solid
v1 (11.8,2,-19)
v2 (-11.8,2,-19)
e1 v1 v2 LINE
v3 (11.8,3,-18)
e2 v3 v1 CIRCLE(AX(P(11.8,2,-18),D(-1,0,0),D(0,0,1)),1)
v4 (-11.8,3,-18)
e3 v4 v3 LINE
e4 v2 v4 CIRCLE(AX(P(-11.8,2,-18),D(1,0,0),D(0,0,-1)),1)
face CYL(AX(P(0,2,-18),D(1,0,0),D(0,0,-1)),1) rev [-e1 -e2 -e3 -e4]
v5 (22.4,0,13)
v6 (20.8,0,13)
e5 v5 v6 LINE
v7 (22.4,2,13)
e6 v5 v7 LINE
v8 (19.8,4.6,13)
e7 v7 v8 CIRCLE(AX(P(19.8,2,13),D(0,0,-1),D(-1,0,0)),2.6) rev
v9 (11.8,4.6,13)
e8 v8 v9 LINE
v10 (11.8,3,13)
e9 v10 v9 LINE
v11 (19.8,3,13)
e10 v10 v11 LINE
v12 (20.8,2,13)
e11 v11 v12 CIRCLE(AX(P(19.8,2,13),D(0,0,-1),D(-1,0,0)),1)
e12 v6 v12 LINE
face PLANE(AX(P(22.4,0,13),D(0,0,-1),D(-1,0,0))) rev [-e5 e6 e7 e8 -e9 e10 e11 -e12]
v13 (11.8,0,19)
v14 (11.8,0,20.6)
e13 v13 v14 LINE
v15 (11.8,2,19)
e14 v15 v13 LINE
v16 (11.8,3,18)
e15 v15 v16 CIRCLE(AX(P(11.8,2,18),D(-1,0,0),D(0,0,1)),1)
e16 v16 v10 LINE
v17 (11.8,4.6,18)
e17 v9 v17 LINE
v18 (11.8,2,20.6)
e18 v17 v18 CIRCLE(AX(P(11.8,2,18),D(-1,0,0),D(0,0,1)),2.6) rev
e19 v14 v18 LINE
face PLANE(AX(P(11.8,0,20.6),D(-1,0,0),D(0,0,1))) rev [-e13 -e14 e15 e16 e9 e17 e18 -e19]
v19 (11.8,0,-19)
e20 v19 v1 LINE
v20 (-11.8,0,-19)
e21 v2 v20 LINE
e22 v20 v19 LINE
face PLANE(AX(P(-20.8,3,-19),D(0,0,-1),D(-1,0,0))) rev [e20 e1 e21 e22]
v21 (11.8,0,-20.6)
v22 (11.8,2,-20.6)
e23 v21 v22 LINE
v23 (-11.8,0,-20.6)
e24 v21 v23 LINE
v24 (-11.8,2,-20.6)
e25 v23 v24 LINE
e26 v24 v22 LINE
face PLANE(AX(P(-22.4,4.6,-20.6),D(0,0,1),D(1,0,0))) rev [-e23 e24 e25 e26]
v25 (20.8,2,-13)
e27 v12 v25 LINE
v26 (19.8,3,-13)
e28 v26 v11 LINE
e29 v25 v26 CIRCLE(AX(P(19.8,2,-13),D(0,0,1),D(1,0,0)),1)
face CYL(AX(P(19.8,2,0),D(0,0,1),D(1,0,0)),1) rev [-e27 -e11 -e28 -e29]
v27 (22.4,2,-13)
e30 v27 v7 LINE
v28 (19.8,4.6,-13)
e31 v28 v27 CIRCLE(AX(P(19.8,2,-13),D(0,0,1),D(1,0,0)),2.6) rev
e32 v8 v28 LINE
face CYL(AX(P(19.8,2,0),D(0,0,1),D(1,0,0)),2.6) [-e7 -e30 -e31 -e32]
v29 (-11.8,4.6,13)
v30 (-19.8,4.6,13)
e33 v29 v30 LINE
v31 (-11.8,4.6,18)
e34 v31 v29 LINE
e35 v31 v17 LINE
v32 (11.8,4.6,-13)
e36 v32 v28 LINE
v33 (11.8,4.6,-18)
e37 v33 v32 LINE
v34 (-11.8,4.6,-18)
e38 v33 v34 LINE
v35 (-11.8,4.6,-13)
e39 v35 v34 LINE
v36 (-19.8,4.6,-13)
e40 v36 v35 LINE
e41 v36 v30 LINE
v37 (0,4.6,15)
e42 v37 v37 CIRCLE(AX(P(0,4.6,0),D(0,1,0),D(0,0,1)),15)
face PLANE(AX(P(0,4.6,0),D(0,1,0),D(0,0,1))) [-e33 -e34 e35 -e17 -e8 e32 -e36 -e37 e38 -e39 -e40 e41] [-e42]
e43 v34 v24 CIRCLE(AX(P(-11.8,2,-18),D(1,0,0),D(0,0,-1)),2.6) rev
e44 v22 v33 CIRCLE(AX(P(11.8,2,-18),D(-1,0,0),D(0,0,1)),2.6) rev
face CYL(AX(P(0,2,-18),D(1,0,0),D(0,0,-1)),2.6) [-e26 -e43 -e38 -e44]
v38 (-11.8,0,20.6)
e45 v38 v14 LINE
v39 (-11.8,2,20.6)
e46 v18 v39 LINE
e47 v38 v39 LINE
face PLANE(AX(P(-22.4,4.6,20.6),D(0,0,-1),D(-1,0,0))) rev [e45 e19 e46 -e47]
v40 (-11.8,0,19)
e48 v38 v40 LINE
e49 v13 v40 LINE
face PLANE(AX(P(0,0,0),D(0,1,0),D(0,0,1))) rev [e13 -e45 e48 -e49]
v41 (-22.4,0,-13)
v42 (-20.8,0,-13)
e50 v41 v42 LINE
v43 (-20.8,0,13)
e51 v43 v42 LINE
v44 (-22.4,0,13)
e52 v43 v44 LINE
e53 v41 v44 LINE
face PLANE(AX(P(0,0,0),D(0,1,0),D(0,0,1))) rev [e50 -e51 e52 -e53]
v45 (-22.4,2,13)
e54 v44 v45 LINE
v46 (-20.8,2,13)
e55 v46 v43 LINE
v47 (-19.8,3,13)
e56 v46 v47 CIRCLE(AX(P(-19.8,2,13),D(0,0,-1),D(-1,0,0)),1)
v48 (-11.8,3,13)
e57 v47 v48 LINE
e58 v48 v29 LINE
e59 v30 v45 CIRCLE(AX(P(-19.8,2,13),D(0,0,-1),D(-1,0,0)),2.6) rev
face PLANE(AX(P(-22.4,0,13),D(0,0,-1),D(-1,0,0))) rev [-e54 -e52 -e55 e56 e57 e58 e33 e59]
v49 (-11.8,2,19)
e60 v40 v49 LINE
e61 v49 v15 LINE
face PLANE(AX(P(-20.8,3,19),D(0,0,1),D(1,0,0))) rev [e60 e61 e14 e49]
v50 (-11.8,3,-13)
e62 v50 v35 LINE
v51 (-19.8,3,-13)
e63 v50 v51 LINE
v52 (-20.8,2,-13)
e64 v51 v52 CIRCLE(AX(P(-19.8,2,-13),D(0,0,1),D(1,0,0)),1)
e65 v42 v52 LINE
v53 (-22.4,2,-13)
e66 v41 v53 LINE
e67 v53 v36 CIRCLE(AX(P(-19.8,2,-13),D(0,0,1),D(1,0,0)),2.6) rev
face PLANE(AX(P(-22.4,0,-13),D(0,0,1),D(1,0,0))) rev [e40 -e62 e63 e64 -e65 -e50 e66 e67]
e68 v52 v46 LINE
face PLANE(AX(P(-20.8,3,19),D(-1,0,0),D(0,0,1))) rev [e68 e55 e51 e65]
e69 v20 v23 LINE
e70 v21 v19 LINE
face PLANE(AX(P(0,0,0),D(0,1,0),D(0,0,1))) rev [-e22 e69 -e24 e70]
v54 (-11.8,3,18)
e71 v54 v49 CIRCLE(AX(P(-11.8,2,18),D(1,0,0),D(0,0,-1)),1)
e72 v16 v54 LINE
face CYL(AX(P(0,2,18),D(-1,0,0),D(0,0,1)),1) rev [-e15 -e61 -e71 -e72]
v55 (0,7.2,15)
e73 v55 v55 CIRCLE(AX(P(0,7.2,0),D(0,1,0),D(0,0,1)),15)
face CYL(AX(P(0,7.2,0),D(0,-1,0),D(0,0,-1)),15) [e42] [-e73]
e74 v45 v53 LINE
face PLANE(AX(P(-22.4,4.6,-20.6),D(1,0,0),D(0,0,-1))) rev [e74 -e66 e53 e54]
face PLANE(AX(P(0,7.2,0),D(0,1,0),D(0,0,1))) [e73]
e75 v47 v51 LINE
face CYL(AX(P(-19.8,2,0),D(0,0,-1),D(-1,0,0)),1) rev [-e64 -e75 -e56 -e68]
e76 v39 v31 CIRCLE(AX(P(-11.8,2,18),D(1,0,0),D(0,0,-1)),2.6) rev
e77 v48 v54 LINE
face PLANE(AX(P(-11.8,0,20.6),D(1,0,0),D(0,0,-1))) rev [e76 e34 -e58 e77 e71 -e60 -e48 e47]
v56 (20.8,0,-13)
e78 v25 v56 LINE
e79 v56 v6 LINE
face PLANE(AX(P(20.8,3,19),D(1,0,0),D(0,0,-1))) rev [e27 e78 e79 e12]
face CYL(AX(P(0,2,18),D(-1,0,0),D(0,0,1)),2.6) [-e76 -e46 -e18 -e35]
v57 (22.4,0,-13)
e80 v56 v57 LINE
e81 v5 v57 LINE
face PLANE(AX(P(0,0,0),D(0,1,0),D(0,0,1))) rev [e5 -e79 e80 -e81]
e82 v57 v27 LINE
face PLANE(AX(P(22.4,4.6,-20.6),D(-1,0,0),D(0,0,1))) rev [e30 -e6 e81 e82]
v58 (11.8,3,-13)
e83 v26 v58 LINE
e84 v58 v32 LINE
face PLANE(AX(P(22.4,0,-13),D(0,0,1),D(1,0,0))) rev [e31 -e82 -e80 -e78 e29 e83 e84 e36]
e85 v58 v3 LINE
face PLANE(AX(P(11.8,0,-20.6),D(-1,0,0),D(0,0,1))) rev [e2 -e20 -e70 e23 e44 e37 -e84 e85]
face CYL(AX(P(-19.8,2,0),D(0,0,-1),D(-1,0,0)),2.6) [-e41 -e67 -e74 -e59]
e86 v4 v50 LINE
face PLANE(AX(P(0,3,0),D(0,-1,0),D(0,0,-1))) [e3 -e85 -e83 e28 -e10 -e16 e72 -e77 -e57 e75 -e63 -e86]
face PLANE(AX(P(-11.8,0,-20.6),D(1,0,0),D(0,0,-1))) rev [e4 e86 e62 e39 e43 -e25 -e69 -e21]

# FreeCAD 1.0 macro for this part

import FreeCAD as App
import Part
import Sketcher


def edges_at(feature, points):
    """Names of the edges that pass closest to the given points."""
    edges = feature.Shape.Edges
    near = lambda p: min(range(len(edges)), key=lambda i: edges[i].distToShape(Part.Vertex(*p))[0])
    return sorted({f"Edge{near(p) + 1}" for p in points})

doc = App.newDocument("Part")
params = doc.addObject("Spreadsheet::Sheet", "Params")
for row, (alias, value) in enumerate([
    ("sketch1_width", "44.8 mm"),
    ("sketch1_height", "41.2 mm"),
    ("pad1_length", "4.6 mm"),
    ("sketch2_height", "38 mm"),
    ("sketch2_width", "41.6 mm"),
    ("pocket1_length", "3 mm"),
    ("sketch3_width", "10.6 mm"),
    ("sketch3_height", "7.6 mm"),
    ("fillet_radius", "2.6 mm"),
    ("fillet2_radius", "1 mm"),
    ("sketch4_diameter", "30 mm"),
    ("pad2_length", "2.6 mm"),
], start=1):
    params.set(f"A{row}", alias)
    params.set(f"B{row}", "=" + value)
    params.setAlias(f"B{row}", alias)

body = doc.addObject("PartDesign::Body", "Body")

# Sketch on XZ plane
sketch1 = body.newObject("Sketcher::SketchObject", "Sketch")
sketch1.AttachmentSupport = (doc.getObject("XZ_Plane"), [""])
sketch1.MapMode = "FlatFace"
sketch1.addGeometry(Part.LineSegment(App.Vector(-22, -21, 0), App.Vector(-22, 21, 0)), False)
sketch1.addGeometry(Part.LineSegment(App.Vector(-22, 21, 0), App.Vector(22, 21, 0)), False)
sketch1.addGeometry(Part.LineSegment(App.Vector(22, 21, 0), App.Vector(22, -21, 0)), False)
sketch1.addGeometry(Part.LineSegment(App.Vector(22, -21, 0), App.Vector(-22, -21, 0)), False)
sketch1.addConstraint(Sketcher.Constraint("Coincident", 0, 2, 1, 1))
sketch1.addConstraint(Sketcher.Constraint("Coincident", 1, 2, 2, 1))
sketch1.addConstraint(Sketcher.Constraint("Coincident", 2, 2, 3, 1))
sketch1.addConstraint(Sketcher.Constraint("Coincident", 3, 2, 0, 1))
sketch1.addConstraint(Sketcher.Constraint("Vertical", 0))
sketch1.addConstraint(Sketcher.Constraint("Horizontal", 1))
sketch1.addConstraint(Sketcher.Constraint("Vertical", 2))
sketch1.addConstraint(Sketcher.Constraint("Horizontal", 3))
sketch1.addConstraint(Sketcher.Constraint("Symmetric", 0, 2, 2, 2, -1, 1))
sketch1.addConstraint(Sketcher.Constraint("DistanceX", 1, 1, 1, 2, 44.8))
sketch1.addConstraint(Sketcher.Constraint("DistanceY", 0, 1, 0, 2, 41.2))
sketch1.setExpression("Constraints[9]", "Params.sketch1_width")
sketch1.setExpression("Constraints[10]", "Params.sketch1_height")
pad1 = body.newObject("PartDesign::Pad", "Pad")
pad1.Profile = sketch1
pad1.setExpression("Length", "Params.pad1_length")
pad1.Reversed = True

# Sketch on XZ plane
sketch2 = body.newObject("Sketcher::SketchObject", "Sketch001")
sketch2.AttachmentSupport = (doc.getObject("XZ_Plane"), [""])
sketch2.MapMode = "FlatFace"
sketch2.addGeometry(Part.LineSegment(App.Vector(21, -19, 0), App.Vector(21, 19, 0)), False)
sketch2.addGeometry(Part.LineSegment(App.Vector(21, 19, 0), App.Vector(-21, 19, 0)), False)
sketch2.addGeometry(Part.LineSegment(App.Vector(-21, 19, 0), App.Vector(-21, -19, 0)), False)
sketch2.addGeometry(Part.LineSegment(App.Vector(-21, -19, 0), App.Vector(21, -19, 0)), False)
sketch2.addConstraint(Sketcher.Constraint("Coincident", 0, 2, 1, 1))
sketch2.addConstraint(Sketcher.Constraint("Coincident", 1, 2, 2, 1))
sketch2.addConstraint(Sketcher.Constraint("Coincident", 2, 2, 3, 1))
sketch2.addConstraint(Sketcher.Constraint("Coincident", 3, 2, 0, 1))
sketch2.addConstraint(Sketcher.Constraint("Vertical", 0))
sketch2.addConstraint(Sketcher.Constraint("Horizontal", 1))
sketch2.addConstraint(Sketcher.Constraint("Vertical", 2))
sketch2.addConstraint(Sketcher.Constraint("Horizontal", 3))
sketch2.addConstraint(Sketcher.Constraint("Symmetric", 0, 2, 2, 2, -1, 1))
sketch2.addConstraint(Sketcher.Constraint("DistanceY", 0, 1, 0, 2, 38.0))
sketch2.addConstraint(Sketcher.Constraint("DistanceX", 1, 2, 1, 1, 41.6))
sketch2.setExpression("Constraints[9]", "Params.sketch2_height")
sketch2.setExpression("Constraints[10]", "Params.sketch2_width")
pocket1 = body.newObject("PartDesign::Pocket", "Pocket")
pocket1.Profile = sketch2
pocket1.setExpression("Length", "Params.pocket1_length")

# Sketch on XZ plane
sketch3 = body.newObject("Sketcher::SketchObject", "Sketch002")
sketch3.AttachmentSupport = (doc.getObject("XZ_Plane"), [""])
sketch3.MapMode = "FlatFace"
sketch3.AttachmentOffset = App.Placement(App.Vector(0, 0, -4.6), App.Rotation())
sketch3.addGeometry(Part.LineSegment(App.Vector(12, 13, 0), App.Vector(12, 21, 0)), False)
sketch3.addGeometry(Part.LineSegment(App.Vector(12, 21, 0), App.Vector(22, 21, 0)), False)
sketch3.addGeometry(Part.LineSegment(App.Vector(22, 21, 0), App.Vector(22, 13, 0)), False)
sketch3.addGeometry(Part.LineSegment(App.Vector(22, 13, 0), App.Vector(12, 13, 0)), False)
sketch3.addGeometry(Part.LineSegment(App.Vector(12, -21, 0), App.Vector(12, -13, 0)), False)
sketch3.addGeometry(Part.LineSegment(App.Vector(12, -13, 0), App.Vector(22, -13, 0)), False)
sketch3.addGeometry(Part.LineSegment(App.Vector(22, -13, 0), App.Vector(22, -21, 0)), False)
sketch3.addGeometry(Part.LineSegment(App.Vector(22, -21, 0), App.Vector(12, -21, 0)), False)
sketch3.addGeometry(Part.LineSegment(App.Vector(-22, 13, 0), App.Vector(-22, 21, 0)), False)
sketch3.addGeometry(Part.LineSegment(App.Vector(-22, 21, 0), App.Vector(-12, 21, 0)), False)
sketch3.addGeometry(Part.LineSegment(App.Vector(-12, 21, 0), App.Vector(-12, 13, 0)), False)
sketch3.addGeometry(Part.LineSegment(App.Vector(-12, 13, 0), App.Vector(-22, 13, 0)), False)
sketch3.addGeometry(Part.LineSegment(App.Vector(-22, -21, 0), App.Vector(-22, -13, 0)), False)
sketch3.addGeometry(Part.LineSegment(App.Vector(-22, -13, 0), App.Vector(-12, -13, 0)), False)
sketch3.addGeometry(Part.LineSegment(App.Vector(-12, -13, 0), App.Vector(-12, -21, 0)), False)
sketch3.addGeometry(Part.LineSegment(App.Vector(-12, -21, 0), App.Vector(-22, -21, 0)), False)
sketch3.addConstraint(Sketcher.Constraint("Coincident", 0, 2, 1, 1))
sketch3.addConstraint(Sketcher.Constraint("Coincident", 1, 2, 2, 1))
sketch3.addConstraint(Sketcher.Constraint("Coincident", 2, 2, 3, 1))
sketch3.addConstraint(Sketcher.Constraint("Coincident", 3, 2, 0, 1))
sketch3.addConstraint(Sketcher.Constraint("Coincident", 4, 2, 5, 1))
sketch3.addConstraint(Sketcher.Constraint("Coincident", 5, 2, 6, 1))
sketch3.addConstraint(Sketcher.Constraint("Coincident", 6, 2, 7, 1))
sketch3.addConstraint(Sketcher.Constraint("Coincident", 7, 2, 4, 1))
sketch3.addConstraint(Sketcher.Constraint("Coincident", 8, 2, 9, 1))
sketch3.addConstraint(Sketcher.Constraint("Coincident", 9, 2, 10, 1))
sketch3.addConstraint(Sketcher.Constraint("Coincident", 10, 2, 11, 1))
sketch3.addConstraint(Sketcher.Constraint("Coincident", 11, 2, 8, 1))
sketch3.addConstraint(Sketcher.Constraint("Coincident", 12, 2, 13, 1))
sketch3.addConstraint(Sketcher.Constraint("Coincident", 13, 2, 14, 1))
sketch3.addConstraint(Sketcher.Constraint("Coincident", 14, 2, 15, 1))
sketch3.addConstraint(Sketcher.Constraint("Coincident", 15, 2, 12, 1))
sketch3.addConstraint(Sketcher.Constraint("Vertical", 0))
sketch3.addConstraint(Sketcher.Constraint("Horizontal", 1))
sketch3.addConstraint(Sketcher.Constraint("Vertical", 2))
sketch3.addConstraint(Sketcher.Constraint("Horizontal", 3))
sketch3.addConstraint(Sketcher.Constraint("Vertical", 4))
sketch3.addConstraint(Sketcher.Constraint("Horizontal", 5))
sketch3.addConstraint(Sketcher.Constraint("Vertical", 6))
sketch3.addConstraint(Sketcher.Constraint("Horizontal", 7))
sketch3.addConstraint(Sketcher.Constraint("Vertical", 8))
sketch3.addConstraint(Sketcher.Constraint("Horizontal", 9))
sketch3.addConstraint(Sketcher.Constraint("Vertical", 10))
sketch3.addConstraint(Sketcher.Constraint("Horizontal", 11))
sketch3.addConstraint(Sketcher.Constraint("Vertical", 12))
sketch3.addConstraint(Sketcher.Constraint("Horizontal", 13))
sketch3.addConstraint(Sketcher.Constraint("Vertical", 14))
sketch3.addConstraint(Sketcher.Constraint("Horizontal", 15))
sketch3.addConstraint(Sketcher.Constraint("Symmetric", 6, 2, 8, 2, -1, 1))
sketch3.addConstraint(Sketcher.Constraint("Symmetric", 4, 2, 10, 2, -1, 1))
sketch3.addConstraint(Sketcher.Constraint("Symmetric", 2, 2, 12, 2, -1, 1))
sketch3.addConstraint(Sketcher.Constraint("Symmetric", 0, 2, 14, 2, -1, 1))
sketch3.addConstraint(Sketcher.Constraint("Symmetric", 1, 2, 8, 2, -2))
sketch3.addConstraint(Sketcher.Constraint("Symmetric", 3, 2, 10, 2, -2))
sketch3.addConstraint(Sketcher.Constraint("DistanceX", 1, 1, 1, 2, 10.6))
sketch3.addConstraint(Sketcher.Constraint("DistanceY", 0, 1, 0, 2, 7.6))
sketch3.addConstraint(Sketcher.Constraint("DistanceY", -1, 1, 2, 2, 13.0))
sketch3.addConstraint(Sketcher.Constraint("DistanceX", -1, 1, 0, 2, 11.8))
sketch3.setExpression("Constraints[38]", "Params.sketch3_width")
sketch3.setExpression("Constraints[39]", "Params.sketch3_height")
pocket2 = body.newObject("PartDesign::Pocket", "Pocket001")
pocket2.Profile = sketch3
pocket2.Type = "ThroughAll"
pocket2.Reversed = True
doc.recompute()

fillet = body.newObject("PartDesign::Fillet", "Fillet")
fillet.Base = (pocket2, edges_at(pocket2, [
    (22.4, 4.6, 0),
    (0, 4.6, -20.6),
    (0, 4.6, 20.6),
    (-22.4, 4.6, 0),
]))
fillet.setExpression("Radius", "Params.fillet_radius")
doc.recompute()

fillet2 = body.newObject("PartDesign::Fillet", "Fillet001")
fillet2.Base = (fillet, edges_at(fillet, [
    (0, 3, 19),
    (20.8, 3, 0),
    (-20.8, 3, 0),
    (0, 3, -19),
]))
fillet2.setExpression("Radius", "Params.fillet2_radius")

# Sketch on XZ plane
sketch4 = body.newObject("Sketcher::SketchObject", "Sketch003")
sketch4.AttachmentSupport = (doc.getObject("XZ_Plane"), [""])
sketch4.MapMode = "FlatFace"
sketch4.AttachmentOffset = App.Placement(App.Vector(0, 0, -4.6), App.Rotation())
sketch4.addGeometry(Part.Circle(App.Vector(0, 0, 0), App.Vector(0, 0, 1), 15), False)
sketch4.addConstraint(Sketcher.Constraint("Coincident", 0, 3, -1, 1))
sketch4.addConstraint(Sketcher.Constraint("Diameter", 0, 30.0))
sketch4.setExpression("Constraints[1]", "Params.sketch4_diameter")
pad2 = body.newObject("PartDesign::Pad", "Pad001")
pad2.Profile = sketch4
pad2.setExpression("Length", "Params.pad2_length")
pad2.Reversed = True

doc.recompute()
